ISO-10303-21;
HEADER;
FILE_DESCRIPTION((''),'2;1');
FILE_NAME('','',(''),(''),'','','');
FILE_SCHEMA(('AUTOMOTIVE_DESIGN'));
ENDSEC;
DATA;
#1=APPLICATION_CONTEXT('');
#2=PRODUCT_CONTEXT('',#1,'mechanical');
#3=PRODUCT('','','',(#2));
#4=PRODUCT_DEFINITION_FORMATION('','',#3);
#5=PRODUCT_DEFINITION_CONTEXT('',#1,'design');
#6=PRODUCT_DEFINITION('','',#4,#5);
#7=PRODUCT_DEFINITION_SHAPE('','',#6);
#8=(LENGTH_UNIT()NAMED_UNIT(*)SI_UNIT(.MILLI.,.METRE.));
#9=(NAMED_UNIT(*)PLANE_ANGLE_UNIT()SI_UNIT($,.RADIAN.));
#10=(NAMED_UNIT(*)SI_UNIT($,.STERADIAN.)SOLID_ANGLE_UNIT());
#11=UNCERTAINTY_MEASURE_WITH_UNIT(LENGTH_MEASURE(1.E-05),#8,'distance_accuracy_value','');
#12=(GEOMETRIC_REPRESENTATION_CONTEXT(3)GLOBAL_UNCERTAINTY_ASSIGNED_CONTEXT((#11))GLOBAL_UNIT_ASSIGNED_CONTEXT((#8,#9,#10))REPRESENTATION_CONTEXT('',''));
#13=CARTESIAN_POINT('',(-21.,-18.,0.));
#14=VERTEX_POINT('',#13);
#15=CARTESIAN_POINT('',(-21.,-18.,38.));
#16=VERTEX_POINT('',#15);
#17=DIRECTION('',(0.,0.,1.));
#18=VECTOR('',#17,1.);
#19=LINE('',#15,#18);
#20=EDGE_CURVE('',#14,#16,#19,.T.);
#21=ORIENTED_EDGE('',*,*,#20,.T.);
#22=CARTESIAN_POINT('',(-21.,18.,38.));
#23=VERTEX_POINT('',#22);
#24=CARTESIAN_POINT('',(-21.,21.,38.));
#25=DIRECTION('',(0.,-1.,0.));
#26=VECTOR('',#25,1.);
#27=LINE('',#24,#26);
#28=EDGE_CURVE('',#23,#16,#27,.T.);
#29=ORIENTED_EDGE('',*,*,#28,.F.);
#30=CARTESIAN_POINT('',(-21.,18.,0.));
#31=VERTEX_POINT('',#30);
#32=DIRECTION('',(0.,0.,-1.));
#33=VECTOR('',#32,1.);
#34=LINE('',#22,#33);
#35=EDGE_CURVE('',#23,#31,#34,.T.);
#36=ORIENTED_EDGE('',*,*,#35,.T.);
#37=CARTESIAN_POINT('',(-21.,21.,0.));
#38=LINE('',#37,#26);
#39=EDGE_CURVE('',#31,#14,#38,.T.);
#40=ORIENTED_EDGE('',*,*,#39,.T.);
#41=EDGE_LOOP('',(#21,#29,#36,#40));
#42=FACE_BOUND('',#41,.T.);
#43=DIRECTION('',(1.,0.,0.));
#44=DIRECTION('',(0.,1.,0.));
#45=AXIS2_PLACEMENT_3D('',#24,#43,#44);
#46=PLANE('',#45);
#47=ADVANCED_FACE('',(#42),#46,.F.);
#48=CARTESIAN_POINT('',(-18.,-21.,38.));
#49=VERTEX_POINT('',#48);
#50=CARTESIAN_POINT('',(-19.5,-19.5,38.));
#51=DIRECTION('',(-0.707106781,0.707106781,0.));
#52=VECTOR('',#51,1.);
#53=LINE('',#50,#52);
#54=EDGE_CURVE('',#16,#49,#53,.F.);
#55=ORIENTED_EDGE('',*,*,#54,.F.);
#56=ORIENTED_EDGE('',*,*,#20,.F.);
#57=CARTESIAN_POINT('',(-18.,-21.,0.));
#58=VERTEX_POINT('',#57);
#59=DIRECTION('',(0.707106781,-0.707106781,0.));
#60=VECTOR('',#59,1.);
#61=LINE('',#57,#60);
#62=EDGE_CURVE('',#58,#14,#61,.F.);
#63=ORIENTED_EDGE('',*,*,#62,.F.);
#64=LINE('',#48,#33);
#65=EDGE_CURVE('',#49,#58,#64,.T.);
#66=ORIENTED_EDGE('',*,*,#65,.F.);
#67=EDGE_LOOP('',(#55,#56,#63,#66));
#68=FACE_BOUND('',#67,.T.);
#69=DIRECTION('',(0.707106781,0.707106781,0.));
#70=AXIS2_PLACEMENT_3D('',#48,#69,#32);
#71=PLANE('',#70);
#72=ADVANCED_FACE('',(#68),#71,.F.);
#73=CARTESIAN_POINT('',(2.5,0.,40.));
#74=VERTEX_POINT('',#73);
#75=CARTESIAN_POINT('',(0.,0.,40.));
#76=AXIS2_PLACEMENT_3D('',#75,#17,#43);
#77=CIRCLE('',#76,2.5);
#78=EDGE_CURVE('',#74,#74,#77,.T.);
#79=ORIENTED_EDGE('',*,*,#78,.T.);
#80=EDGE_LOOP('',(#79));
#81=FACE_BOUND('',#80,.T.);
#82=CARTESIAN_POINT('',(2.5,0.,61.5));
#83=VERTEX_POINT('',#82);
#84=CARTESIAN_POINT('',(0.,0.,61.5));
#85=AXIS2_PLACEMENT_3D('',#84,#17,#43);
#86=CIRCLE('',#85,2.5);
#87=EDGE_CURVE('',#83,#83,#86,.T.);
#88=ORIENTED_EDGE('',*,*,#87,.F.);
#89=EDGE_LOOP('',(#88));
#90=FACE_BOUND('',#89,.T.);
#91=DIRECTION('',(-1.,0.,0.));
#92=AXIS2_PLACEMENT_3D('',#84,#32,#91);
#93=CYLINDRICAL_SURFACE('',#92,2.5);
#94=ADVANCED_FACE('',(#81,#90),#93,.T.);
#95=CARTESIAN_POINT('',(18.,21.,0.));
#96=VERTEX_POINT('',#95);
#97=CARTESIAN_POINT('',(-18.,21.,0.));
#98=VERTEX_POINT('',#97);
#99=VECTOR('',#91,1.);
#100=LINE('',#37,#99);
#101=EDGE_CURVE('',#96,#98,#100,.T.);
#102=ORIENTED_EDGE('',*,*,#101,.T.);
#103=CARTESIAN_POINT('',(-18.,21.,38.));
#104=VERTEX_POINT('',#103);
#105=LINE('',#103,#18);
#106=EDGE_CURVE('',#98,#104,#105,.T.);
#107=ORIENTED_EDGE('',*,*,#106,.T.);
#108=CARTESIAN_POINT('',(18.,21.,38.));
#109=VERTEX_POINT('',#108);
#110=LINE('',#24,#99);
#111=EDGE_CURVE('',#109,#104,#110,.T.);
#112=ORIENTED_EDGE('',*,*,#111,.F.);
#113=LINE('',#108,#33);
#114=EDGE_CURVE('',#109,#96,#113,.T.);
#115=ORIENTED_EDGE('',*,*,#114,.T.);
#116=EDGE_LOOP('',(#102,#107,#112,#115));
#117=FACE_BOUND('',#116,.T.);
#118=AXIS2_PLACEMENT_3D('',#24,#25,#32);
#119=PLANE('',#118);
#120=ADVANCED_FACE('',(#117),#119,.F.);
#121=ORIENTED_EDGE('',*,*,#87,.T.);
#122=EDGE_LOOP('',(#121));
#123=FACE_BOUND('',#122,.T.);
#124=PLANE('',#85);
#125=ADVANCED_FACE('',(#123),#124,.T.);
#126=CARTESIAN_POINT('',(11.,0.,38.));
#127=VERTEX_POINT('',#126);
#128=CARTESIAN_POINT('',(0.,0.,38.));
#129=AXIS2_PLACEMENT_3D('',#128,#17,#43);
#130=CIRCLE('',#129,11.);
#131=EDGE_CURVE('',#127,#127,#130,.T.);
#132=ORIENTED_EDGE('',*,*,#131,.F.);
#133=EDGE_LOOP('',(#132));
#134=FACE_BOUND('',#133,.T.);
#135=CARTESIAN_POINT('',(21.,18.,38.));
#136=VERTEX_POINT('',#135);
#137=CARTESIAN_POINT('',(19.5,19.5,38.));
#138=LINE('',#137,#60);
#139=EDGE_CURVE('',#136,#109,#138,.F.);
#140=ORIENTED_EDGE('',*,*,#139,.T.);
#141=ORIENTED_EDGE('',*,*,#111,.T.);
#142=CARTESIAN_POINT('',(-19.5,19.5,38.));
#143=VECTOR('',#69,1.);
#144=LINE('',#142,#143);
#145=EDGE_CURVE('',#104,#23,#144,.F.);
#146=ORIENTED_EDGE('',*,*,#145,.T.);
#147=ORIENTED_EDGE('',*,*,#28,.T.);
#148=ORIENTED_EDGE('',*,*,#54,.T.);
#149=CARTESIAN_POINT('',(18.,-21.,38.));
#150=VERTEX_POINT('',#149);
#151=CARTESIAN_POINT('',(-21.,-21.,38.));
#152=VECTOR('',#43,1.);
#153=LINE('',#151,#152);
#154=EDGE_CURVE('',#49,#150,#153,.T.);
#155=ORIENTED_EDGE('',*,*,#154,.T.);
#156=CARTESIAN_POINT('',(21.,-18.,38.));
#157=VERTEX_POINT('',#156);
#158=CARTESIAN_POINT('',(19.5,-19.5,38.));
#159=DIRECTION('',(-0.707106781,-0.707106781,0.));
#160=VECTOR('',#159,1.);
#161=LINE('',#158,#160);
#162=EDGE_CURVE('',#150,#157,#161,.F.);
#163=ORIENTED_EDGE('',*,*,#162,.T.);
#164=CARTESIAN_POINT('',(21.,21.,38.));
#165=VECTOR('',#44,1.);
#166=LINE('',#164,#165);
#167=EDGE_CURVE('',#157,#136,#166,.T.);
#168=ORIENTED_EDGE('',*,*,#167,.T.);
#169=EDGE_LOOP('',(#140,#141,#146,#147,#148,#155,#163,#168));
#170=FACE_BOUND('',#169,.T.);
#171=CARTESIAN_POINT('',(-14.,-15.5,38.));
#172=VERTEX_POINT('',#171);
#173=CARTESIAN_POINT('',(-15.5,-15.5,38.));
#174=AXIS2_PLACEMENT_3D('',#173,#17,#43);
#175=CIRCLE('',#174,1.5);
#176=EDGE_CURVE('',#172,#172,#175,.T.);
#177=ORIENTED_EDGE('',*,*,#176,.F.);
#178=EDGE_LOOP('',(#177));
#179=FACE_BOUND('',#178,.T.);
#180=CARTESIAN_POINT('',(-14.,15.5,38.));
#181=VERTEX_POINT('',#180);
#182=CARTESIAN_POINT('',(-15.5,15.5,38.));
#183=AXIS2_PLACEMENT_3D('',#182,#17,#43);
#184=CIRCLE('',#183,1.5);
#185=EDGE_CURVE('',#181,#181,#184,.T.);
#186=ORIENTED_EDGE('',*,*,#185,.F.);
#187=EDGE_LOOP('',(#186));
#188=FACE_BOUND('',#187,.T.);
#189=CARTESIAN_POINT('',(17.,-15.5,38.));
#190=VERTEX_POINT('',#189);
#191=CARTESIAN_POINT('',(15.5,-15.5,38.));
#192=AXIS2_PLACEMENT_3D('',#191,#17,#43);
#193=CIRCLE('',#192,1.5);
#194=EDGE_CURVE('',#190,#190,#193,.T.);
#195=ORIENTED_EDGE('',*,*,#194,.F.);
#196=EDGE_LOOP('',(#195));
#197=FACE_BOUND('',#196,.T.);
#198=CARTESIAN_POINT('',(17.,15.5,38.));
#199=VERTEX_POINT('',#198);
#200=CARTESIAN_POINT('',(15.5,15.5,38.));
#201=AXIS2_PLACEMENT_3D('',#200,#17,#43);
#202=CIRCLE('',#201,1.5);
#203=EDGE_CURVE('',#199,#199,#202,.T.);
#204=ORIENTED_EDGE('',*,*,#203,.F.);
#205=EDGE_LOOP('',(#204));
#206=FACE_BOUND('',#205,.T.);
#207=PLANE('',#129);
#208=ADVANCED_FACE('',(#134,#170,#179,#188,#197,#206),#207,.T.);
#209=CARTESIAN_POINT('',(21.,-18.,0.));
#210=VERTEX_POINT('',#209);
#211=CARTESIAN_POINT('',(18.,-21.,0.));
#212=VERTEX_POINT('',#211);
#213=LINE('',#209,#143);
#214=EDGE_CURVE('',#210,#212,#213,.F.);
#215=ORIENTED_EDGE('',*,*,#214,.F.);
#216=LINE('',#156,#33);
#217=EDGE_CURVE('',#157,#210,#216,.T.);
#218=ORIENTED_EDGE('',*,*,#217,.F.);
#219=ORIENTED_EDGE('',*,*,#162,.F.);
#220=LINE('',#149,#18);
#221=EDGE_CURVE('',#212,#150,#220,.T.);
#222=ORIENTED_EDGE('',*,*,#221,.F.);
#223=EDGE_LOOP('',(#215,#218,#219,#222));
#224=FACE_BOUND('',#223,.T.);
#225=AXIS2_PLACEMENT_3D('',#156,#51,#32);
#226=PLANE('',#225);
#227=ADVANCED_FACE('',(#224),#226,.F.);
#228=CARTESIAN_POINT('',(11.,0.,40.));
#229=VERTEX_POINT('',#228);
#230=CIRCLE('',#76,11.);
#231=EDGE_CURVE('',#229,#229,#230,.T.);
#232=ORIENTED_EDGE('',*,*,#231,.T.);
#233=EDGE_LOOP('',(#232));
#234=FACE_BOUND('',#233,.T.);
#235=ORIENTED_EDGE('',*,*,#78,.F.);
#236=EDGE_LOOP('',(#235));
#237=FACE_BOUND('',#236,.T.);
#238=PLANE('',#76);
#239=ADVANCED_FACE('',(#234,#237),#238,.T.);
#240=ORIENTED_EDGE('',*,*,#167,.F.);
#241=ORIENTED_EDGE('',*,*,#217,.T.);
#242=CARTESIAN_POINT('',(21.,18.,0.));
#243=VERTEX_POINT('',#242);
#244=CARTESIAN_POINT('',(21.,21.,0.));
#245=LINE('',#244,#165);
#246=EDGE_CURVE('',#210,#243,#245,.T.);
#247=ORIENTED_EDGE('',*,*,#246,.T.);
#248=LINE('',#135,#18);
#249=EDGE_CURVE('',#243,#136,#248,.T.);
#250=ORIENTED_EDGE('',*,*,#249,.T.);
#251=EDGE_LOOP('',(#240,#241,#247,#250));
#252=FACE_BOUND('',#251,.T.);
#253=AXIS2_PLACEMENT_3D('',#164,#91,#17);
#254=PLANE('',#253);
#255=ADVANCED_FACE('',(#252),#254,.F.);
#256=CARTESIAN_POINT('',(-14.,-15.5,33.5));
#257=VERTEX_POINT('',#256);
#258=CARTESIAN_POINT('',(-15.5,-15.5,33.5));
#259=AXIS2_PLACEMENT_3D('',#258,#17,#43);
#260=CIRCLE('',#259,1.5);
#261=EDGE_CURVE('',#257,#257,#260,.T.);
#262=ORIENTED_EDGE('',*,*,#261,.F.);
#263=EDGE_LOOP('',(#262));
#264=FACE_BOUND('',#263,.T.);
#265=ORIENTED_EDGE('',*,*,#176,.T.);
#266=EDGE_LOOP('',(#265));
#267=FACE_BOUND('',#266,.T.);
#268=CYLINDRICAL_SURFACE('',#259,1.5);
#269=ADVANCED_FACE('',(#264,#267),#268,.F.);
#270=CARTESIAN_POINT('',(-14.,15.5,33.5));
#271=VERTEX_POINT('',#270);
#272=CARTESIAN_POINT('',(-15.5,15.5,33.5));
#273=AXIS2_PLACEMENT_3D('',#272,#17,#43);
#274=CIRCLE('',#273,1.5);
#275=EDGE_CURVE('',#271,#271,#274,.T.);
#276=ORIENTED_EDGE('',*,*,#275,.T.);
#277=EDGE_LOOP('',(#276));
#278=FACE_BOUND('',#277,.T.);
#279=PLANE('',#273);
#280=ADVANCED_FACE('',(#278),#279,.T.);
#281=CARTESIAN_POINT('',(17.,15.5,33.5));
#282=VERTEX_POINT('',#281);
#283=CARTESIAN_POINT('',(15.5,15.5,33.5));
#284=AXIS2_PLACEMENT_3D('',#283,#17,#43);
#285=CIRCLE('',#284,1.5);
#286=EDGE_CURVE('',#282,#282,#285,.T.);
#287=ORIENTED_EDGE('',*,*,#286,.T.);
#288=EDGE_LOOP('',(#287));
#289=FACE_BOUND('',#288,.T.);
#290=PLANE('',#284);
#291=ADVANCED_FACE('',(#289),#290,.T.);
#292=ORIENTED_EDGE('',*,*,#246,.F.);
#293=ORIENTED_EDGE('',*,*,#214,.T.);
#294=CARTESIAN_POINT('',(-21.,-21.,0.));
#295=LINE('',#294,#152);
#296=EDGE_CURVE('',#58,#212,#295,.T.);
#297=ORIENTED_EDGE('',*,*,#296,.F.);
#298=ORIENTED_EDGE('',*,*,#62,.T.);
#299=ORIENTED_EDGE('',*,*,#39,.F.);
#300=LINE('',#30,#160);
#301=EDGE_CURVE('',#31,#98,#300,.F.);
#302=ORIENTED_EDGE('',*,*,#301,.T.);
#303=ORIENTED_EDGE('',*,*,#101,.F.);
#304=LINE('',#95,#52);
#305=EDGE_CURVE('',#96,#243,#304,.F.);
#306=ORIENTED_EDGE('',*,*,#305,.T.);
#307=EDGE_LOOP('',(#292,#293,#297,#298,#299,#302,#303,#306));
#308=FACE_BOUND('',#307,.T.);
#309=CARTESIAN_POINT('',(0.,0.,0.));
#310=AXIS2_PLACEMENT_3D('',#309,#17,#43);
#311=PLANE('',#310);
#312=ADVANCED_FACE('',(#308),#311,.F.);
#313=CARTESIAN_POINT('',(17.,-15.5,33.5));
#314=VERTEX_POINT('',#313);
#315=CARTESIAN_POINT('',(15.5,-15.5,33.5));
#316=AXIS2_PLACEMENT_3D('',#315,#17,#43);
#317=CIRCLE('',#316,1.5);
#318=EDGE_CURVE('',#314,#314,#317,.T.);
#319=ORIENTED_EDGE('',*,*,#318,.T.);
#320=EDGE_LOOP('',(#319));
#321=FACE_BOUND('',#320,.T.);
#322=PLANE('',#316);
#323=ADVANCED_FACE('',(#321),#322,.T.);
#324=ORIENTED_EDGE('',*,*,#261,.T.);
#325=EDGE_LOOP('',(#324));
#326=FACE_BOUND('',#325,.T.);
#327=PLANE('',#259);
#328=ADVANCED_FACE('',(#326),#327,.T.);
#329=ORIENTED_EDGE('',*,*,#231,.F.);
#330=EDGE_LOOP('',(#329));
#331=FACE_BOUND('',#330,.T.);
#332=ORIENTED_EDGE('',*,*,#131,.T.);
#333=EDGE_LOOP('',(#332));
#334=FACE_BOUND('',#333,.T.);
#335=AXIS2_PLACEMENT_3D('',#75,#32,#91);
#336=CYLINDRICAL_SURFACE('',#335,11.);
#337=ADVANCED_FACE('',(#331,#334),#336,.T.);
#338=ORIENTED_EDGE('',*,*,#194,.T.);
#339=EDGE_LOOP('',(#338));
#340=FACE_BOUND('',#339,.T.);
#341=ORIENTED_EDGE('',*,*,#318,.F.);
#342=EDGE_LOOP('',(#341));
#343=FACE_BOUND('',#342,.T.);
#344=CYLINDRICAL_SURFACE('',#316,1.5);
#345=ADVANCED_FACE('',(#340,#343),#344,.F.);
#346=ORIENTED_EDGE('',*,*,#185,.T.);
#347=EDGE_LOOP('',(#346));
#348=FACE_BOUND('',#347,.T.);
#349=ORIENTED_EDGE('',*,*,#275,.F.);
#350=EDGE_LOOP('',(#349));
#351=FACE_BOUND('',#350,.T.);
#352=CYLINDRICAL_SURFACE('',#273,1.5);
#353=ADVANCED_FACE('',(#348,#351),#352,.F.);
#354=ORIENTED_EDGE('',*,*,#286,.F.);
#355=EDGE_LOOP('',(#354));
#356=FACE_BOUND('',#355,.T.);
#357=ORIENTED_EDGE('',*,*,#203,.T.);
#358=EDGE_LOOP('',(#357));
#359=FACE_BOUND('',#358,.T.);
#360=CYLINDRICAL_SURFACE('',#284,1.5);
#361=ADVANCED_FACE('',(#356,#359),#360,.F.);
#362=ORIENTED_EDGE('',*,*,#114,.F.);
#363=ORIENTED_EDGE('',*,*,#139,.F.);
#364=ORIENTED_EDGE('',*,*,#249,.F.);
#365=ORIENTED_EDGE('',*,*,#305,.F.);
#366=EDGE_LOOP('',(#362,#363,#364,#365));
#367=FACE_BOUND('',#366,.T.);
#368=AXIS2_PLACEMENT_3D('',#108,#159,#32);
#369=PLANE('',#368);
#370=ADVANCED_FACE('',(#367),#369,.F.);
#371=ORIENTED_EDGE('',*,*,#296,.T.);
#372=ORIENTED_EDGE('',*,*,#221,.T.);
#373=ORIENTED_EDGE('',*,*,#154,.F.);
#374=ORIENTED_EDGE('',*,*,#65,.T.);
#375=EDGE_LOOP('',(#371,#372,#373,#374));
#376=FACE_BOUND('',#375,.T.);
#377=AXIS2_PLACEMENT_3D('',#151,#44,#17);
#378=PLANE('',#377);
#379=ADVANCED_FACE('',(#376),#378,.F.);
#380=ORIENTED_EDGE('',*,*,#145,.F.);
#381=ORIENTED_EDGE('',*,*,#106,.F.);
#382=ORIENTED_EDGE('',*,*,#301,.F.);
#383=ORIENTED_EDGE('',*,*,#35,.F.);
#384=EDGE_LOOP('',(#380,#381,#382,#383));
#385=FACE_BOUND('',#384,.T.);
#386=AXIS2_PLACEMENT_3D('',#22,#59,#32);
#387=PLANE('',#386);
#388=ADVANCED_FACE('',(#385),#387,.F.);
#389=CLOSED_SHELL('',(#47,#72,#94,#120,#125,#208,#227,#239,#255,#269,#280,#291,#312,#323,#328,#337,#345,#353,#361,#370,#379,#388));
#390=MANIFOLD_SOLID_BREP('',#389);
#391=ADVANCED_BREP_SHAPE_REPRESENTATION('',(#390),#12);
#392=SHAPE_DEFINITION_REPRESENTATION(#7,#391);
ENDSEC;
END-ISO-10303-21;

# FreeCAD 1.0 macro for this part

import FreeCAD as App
import Part
import Sketcher

V = App.Vector
Q = App.Units.Quantity


def edges_at(feature, points):
    """Names of the edges that pass closest to the given points."""
    edges = feature.Shape.Edges
    near = lambda p: min(range(len(edges)), key=lambda i: edges[i].distToShape(Part.Vertex(*p))[0])
    return sorted({f"Edge{near(p) + 1}" for p in points})


def add_polygon(sketch, points):
    """Adds a closed chain of lines whose ends are joined by coincident constraints."""
    first, n = sketch.GeometryCount, len(points)
    for a, b in zip(points, points[1:] + points[:1]):
        sketch.addGeometry(Part.LineSegment(App.Vector(*a, 0), App.Vector(*b, 0)), False)
    for i in range(n):
        sketch.addConstraint(Sketcher.Constraint("Coincident", first + i, 2, first + (i + 1) % n, 1))

doc = App.newDocument("Part")
body = doc.addObject("PartDesign::Body", "Body")

sketch1 = body.newObject("Sketcher::SketchObject", "Sketch")
sketch1.AttachmentSupport = (doc.getObject("XY_Plane"), [""])
sketch1.MapMode = "FlatFace"
add_polygon(sketch1, [(-21, 21), (-21, -21), (21, -21), (21, 21)])
sketch1.addConstraint([
    Sketcher.Constraint("Vertical", 0),
    Sketcher.Constraint("Horizontal", 1),
    Sketcher.Constraint("Vertical", 2),
    Sketcher.Constraint("Horizontal", 3),
    Sketcher.Constraint("Symmetric", 0, 2, 2, 2, -1, 1),
    Sketcher.Constraint("Equal", 3, 0),
    Sketcher.Constraint("DistanceX", 1, 1, 1, 2, Q("42 mm")),
])
pad1 = body.newObject("PartDesign::Pad", "Pad")
pad1.Profile = sketch1
pad1.Length = 38

sketch2 = body.newObject("Sketcher::SketchObject", "Sketch001")
sketch2.AttachmentSupport = (doc.getObject("XY_Plane"), [""])
sketch2.MapMode = "FlatFace"
sketch2.AttachmentOffset = App.Placement(V(0, 0, 38), App.Rotation())
sketch2.addGeometry(Part.Circle(V(0, 0, 0), V(0, 0, 1), 11), False)
sketch2.addConstraint([
    Sketcher.Constraint("Coincident", 0, 3, -1, 1),
    Sketcher.Constraint("Diameter", 0, Q("22 mm")),
])
pad2 = body.newObject("PartDesign::Pad", "Pad001")
pad2.Profile = sketch2
pad2.Length = 2

sketch3 = body.newObject("Sketcher::SketchObject", "Sketch002")
sketch3.AttachmentSupport = (doc.getObject("XY_Plane"), [""])
sketch3.MapMode = "FlatFace"
sketch3.AttachmentOffset = App.Placement(V(0, 0, 40), App.Rotation())
sketch3.addGeometry(Part.Circle(V(0, 0, 0), V(0, 0, 1), 2.5), False)
sketch3.addConstraint([
    Sketcher.Constraint("Coincident", 0, 3, -1, 1),
    Sketcher.Constraint("Diameter", 0, Q("5 mm")),
])
pad3 = body.newObject("PartDesign::Pad", "Pad002")
pad3.Profile = sketch3
pad3.Length = 21.5

sketch4 = body.newObject("Sketcher::SketchObject", "Sketch003")
sketch4.AttachmentSupport = (doc.getObject("XY_Plane"), [""])
sketch4.MapMode = "FlatFace"
sketch4.AttachmentOffset = App.Placement(V(0, 0, 38), App.Rotation())
sketch4.addGeometry([
    Part.Circle(V(15.5, 15.5, 0), V(0, 0, 1), 1.5),
    Part.Circle(V(15.5, -15.5, 0), V(0, 0, 1), 1.5),
    Part.Circle(V(-15.5, -15.5, 0), V(0, 0, 1), 1.5),
    Part.Circle(V(-15.5, 15.5, 0), V(0, 0, 1), 1.5),
], False)
sketch4.addConstraint([
    Sketcher.Constraint("Equal", 0, 1),
    Sketcher.Constraint("Equal", 1, 2),
    Sketcher.Constraint("Equal", 2, 3),
    Sketcher.Constraint("Symmetric", 0, 3, 2, 3, -1, 1),
    Sketcher.Constraint("Symmetric", 1, 3, 3, 3, -1, 1),
    Sketcher.Constraint("Symmetric", 1, 3, 2, 3, -2),
    Sketcher.Constraint("Diameter", 0, Q("3 mm")),
    Sketcher.Constraint("DistanceY", 1, 3, 0, 3, Q("31 mm")),
    Sketcher.Constraint("DistanceX", 2, 3, 1, 3, Q("31 mm")),
])
pocket1 = body.newObject("PartDesign::Pocket", "Pocket")
pocket1.Profile = sketch4
pocket1.Length = 4.5
doc.recompute()

chamfer = body.newObject("PartDesign::Chamfer", "Chamfer")
chamfer.Base = (pocket1, edges_at(pocket1, [
    (21, -21, 19),
    (-21, -21, 19),
    (-21, 21, 19),
    (21, 21, 19),
]))
chamfer.Size = 3

doc.recompute()
